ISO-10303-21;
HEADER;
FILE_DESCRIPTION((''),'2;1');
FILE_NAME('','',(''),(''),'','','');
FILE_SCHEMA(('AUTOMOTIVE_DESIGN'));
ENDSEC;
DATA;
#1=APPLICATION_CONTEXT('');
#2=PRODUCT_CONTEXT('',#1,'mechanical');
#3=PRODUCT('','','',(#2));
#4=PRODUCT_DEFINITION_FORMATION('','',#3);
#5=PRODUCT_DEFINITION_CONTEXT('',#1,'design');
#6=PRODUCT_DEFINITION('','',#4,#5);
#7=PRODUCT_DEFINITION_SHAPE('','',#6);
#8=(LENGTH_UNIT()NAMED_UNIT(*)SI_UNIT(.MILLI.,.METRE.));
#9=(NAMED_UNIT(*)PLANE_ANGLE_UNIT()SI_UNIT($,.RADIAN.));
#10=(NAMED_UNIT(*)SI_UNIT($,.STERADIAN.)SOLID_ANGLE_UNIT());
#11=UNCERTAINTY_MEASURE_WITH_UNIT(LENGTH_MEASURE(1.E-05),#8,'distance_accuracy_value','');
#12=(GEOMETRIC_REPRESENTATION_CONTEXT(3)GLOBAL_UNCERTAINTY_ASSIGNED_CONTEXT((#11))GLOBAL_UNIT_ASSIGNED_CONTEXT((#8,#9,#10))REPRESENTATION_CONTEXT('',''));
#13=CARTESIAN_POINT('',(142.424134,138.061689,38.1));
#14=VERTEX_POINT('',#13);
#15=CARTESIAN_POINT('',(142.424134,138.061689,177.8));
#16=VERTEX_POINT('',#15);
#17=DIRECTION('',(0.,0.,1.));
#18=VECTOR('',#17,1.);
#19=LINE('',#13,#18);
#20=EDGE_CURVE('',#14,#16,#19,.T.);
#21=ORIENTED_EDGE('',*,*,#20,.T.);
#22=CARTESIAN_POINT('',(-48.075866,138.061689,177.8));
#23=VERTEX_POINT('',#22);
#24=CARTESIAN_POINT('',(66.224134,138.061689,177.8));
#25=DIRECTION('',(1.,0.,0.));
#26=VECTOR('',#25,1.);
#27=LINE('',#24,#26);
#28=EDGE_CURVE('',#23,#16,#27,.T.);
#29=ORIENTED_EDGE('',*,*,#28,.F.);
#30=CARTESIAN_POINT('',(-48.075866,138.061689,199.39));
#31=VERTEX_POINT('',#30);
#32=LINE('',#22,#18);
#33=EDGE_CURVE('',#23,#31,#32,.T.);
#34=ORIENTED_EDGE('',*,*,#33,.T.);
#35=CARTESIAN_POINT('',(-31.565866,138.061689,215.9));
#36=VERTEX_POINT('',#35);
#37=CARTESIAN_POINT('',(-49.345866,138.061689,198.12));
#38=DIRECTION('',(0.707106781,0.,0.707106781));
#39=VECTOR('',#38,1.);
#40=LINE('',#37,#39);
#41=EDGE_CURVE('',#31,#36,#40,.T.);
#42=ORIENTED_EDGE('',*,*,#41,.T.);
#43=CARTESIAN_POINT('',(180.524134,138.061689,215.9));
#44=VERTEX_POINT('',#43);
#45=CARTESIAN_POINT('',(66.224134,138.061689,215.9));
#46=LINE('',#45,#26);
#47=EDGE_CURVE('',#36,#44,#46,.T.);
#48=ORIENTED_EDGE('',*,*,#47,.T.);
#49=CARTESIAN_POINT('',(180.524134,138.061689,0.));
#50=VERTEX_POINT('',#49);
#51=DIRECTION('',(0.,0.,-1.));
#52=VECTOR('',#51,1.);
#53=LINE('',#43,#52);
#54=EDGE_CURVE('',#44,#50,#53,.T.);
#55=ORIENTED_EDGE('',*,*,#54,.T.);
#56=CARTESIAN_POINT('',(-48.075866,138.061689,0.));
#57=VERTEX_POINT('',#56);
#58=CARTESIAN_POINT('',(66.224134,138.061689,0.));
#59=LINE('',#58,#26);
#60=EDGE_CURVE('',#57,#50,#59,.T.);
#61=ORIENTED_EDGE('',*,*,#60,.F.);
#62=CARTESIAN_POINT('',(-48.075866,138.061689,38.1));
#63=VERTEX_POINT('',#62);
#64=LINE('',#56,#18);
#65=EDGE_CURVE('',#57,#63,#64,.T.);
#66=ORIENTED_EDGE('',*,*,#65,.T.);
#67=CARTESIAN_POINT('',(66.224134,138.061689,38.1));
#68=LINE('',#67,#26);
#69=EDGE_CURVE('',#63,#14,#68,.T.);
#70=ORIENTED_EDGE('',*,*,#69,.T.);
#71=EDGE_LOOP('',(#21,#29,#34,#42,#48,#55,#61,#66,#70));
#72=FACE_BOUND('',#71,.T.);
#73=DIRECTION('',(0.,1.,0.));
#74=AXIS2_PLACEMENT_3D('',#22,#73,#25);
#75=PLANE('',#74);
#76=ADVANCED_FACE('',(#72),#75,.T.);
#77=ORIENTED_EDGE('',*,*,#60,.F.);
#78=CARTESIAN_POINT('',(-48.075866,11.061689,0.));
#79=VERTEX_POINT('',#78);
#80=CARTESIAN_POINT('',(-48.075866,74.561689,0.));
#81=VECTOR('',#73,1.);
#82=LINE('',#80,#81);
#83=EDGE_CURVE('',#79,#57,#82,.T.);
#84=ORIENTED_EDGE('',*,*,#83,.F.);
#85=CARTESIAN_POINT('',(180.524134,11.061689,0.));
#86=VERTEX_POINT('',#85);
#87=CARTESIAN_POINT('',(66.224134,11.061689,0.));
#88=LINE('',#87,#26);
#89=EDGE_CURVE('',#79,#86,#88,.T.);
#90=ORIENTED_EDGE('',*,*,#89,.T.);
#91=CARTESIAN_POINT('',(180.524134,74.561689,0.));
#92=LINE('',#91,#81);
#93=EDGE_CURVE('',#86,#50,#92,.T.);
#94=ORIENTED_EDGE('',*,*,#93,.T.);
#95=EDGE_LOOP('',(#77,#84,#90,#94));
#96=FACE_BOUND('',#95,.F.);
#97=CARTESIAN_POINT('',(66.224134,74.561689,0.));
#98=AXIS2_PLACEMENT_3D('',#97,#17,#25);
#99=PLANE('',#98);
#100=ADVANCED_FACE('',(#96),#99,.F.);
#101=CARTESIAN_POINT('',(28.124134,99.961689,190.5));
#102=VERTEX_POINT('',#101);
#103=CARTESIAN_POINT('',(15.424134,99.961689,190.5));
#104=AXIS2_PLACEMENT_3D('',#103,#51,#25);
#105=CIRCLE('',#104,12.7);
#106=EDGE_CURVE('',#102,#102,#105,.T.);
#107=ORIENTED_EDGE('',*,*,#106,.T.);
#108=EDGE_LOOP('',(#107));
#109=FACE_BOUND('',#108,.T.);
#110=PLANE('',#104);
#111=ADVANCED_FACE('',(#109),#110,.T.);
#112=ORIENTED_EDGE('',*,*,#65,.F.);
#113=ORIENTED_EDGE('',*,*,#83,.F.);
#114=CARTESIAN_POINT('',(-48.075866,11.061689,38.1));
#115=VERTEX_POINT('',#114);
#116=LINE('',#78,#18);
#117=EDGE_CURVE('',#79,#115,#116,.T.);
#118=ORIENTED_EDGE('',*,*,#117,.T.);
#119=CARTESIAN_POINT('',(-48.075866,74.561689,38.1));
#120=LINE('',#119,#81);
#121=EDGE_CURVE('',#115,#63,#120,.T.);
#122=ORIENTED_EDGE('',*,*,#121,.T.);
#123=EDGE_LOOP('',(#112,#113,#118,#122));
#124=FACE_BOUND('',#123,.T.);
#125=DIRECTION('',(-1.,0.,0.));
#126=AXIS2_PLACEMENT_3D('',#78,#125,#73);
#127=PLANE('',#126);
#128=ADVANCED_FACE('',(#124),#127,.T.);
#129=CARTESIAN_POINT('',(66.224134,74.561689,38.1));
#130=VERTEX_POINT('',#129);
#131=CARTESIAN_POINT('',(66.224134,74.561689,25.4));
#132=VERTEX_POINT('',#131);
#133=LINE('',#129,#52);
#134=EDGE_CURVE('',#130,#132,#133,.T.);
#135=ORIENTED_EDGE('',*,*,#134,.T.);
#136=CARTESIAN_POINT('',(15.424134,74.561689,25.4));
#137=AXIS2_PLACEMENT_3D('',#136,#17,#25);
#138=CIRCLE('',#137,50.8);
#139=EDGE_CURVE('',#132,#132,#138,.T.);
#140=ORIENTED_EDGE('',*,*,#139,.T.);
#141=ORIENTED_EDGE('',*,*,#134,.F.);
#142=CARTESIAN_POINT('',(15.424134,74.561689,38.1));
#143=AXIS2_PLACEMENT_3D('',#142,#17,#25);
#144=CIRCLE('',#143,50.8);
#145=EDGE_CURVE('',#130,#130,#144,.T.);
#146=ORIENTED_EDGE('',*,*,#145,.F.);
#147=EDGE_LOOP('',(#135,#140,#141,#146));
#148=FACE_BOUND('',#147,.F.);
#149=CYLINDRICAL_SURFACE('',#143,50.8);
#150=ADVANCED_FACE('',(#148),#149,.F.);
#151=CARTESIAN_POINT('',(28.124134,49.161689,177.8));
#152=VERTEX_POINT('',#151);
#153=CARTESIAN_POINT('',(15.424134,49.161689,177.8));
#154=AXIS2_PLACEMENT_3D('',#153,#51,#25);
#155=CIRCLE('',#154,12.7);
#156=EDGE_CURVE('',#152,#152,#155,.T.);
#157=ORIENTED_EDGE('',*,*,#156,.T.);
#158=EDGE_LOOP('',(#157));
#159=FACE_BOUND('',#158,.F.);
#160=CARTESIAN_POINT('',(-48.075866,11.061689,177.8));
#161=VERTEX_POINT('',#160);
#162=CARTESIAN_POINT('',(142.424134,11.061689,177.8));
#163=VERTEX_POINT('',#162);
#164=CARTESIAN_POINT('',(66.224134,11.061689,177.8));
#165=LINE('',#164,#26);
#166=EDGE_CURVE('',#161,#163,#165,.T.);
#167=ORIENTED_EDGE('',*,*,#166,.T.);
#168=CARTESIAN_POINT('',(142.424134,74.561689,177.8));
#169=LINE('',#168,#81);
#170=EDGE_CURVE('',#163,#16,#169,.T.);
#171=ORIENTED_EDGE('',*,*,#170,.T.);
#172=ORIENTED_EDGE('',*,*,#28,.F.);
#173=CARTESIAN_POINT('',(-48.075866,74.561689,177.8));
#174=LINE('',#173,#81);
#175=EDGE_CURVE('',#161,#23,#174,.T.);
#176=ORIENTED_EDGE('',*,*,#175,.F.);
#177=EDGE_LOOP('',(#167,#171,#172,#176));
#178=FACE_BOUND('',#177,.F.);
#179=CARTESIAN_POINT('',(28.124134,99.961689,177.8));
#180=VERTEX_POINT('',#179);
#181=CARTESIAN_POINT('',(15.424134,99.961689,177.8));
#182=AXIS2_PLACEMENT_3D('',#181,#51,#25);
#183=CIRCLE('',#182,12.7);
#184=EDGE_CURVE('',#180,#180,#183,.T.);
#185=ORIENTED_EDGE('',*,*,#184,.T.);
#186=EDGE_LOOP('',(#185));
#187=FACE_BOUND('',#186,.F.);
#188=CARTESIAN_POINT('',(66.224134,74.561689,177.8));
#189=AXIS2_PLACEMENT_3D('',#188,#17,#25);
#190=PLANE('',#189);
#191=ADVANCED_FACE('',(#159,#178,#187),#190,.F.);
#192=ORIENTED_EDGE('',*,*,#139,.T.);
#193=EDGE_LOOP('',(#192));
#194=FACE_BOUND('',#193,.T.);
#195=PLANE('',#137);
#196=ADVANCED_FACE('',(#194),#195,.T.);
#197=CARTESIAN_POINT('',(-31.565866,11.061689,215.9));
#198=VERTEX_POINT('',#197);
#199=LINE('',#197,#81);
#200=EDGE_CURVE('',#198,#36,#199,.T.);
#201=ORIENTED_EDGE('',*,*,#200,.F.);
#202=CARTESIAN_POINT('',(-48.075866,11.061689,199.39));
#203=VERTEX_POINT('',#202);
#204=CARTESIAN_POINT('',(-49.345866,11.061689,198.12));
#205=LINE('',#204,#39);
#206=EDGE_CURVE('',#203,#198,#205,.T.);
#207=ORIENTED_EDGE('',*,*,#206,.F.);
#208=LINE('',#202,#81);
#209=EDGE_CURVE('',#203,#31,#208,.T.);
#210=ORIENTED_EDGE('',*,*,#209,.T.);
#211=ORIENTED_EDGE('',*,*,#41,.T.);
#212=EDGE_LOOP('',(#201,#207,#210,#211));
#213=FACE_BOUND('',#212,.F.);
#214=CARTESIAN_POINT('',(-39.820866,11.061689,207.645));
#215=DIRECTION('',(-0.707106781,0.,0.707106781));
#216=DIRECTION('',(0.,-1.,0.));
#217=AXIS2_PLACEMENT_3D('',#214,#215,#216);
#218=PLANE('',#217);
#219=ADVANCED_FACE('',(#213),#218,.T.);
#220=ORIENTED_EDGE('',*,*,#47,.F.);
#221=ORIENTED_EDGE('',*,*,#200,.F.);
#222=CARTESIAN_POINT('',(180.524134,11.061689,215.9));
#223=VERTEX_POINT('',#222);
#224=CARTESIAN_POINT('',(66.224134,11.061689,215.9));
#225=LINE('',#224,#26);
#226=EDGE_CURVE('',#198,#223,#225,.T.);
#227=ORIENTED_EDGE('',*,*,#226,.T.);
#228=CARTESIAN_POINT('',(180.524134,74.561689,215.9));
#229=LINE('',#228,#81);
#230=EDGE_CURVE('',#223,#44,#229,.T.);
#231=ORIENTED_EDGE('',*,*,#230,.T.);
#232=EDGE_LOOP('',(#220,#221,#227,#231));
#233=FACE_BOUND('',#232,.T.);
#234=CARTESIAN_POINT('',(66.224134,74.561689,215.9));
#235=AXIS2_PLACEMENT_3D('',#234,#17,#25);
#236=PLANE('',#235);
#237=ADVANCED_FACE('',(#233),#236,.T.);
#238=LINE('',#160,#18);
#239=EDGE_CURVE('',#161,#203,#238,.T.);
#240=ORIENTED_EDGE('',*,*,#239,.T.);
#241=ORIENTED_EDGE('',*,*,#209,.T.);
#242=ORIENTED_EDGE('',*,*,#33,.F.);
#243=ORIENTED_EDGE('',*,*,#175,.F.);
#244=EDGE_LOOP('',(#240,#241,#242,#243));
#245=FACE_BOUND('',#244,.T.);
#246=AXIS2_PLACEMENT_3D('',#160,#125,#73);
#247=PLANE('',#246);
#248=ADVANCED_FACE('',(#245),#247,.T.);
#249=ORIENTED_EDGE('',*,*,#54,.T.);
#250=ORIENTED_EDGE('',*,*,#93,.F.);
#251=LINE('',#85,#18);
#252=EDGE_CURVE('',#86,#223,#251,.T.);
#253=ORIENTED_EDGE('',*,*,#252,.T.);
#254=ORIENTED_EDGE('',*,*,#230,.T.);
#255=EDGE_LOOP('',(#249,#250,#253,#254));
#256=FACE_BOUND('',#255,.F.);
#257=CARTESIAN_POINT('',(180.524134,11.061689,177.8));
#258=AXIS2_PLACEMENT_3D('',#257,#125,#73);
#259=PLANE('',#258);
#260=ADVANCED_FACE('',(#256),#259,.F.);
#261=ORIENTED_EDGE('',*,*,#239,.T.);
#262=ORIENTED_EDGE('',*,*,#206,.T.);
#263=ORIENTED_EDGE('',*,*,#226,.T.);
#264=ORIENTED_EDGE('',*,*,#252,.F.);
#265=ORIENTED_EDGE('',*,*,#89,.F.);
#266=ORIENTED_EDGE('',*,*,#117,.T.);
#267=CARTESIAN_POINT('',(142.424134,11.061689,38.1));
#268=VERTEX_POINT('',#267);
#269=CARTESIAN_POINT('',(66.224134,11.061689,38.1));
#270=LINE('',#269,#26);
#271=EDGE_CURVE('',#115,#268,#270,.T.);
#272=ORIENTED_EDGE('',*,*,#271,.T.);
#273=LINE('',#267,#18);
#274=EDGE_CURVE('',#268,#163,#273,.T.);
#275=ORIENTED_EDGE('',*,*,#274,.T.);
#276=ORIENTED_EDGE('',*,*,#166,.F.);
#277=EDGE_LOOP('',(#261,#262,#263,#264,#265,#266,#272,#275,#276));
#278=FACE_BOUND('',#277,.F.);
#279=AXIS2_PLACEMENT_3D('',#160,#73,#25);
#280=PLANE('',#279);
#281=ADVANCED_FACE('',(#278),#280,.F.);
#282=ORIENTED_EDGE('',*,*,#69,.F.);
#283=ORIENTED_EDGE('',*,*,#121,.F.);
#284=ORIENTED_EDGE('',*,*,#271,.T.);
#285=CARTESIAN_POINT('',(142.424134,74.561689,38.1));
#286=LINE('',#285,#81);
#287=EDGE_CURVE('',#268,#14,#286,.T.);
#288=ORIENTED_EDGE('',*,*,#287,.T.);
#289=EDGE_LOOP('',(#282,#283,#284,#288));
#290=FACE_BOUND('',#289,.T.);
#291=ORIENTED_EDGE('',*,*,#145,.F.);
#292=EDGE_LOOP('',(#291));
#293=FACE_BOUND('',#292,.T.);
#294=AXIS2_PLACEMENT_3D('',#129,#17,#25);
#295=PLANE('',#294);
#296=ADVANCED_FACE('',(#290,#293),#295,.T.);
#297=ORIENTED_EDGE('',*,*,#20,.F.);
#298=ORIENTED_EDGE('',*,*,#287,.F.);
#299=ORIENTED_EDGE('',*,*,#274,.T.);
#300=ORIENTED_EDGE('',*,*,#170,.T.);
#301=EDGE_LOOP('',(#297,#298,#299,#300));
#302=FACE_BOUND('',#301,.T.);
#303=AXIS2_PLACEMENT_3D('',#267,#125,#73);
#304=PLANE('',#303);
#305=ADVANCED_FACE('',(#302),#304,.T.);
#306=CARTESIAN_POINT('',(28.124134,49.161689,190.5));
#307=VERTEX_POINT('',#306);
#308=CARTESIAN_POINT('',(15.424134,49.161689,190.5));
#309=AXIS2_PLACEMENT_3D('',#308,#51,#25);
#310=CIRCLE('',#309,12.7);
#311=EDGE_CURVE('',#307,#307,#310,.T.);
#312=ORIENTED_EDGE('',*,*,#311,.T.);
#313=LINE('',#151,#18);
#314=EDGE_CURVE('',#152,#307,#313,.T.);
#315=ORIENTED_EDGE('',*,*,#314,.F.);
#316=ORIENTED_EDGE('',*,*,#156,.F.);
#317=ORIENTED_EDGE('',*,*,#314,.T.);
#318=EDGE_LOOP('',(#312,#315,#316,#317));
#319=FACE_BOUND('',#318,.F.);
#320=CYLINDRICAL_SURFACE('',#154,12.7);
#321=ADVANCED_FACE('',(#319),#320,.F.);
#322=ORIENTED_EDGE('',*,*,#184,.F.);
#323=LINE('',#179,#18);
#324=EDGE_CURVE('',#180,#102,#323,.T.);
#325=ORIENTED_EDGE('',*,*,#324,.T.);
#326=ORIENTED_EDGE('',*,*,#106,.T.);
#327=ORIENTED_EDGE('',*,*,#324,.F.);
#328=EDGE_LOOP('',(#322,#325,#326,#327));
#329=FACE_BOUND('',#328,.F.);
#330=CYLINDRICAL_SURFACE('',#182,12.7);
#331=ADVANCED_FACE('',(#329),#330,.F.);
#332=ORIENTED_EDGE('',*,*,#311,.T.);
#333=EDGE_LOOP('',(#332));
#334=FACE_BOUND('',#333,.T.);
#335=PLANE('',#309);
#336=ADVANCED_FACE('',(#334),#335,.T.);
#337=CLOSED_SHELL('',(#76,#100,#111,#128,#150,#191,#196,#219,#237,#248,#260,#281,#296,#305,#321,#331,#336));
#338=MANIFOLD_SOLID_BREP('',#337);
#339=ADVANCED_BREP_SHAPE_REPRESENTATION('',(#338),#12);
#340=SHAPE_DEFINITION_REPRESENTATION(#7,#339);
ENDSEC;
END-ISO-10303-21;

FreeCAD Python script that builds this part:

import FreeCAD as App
import Part
import Sketcher

V = App.Vector
Q = App.Units.Quantity


def edges_at(feature, points):
    """Names of the edges that pass closest to the given points."""
    edges = feature.Shape.Edges
    near = lambda p: min(range(len(edges)), key=lambda i: edges[i].distToShape(Part.Vertex(*p))[0])
    return sorted({f"Edge{near(p) + 1}" for p in points})

doc = App.newDocument("Part")
body = doc.addObject("PartDesign::Body", "Body")

# Sketch on XY plane
sketch1 = body.newObject("Sketcher::SketchObject", "Sketch")
sketch1.AttachmentSupport = (doc.getObject("XY_Plane"), [""])
sketch1.MapMode = "FlatFace"
sketch1.addGeometry(Part.LineSegment(V(-48.075866, 138.061689, 0), V(-48.075866, 11.061689, 0)), False)
sketch1.addGeometry(Part.LineSegment(V(-48.075866, 11.061689, 0), V(180.524134, 11.061689, 0)), False)
sketch1.addGeometry(Part.LineSegment(V(180.524134, 11.061689, 0), V(180.524134, 138.061689, 0)), False)
sketch1.addGeometry(Part.LineSegment(V(180.524134, 138.061689, 0), V(-48.075866, 138.061689, 0)), False)
sketch1.addConstraint(Sketcher.Constraint("Coincident", 0, 2, 1, 1))
sketch1.addConstraint(Sketcher.Constraint("Coincident", 1, 2, 2, 1))
sketch1.addConstraint(Sketcher.Constraint("Coincident", 2, 2, 3, 1))
sketch1.addConstraint(Sketcher.Constraint("Coincident", 3, 2, 0, 1))
sketch1.addConstraint(Sketcher.Constraint("Vertical", 0))
sketch1.addConstraint(Sketcher.Constraint("Horizontal", 1))
sketch1.addConstraint(Sketcher.Constraint("Vertical", 2))
sketch1.addConstraint(Sketcher.Constraint("Horizontal", 3))
sketch1.addConstraint(Sketcher.Constraint("DistanceX", 1, 1, 1, 2, Q("9 in")))
sketch1.addConstraint(Sketcher.Constraint("DistanceY", 0, 2, 0, 1, Q("5 in")))
sketch1.addConstraint(Sketcher.Constraint("DistanceY", -1, 1, 0, 2, 11.061689))
sketch1.addConstraint(Sketcher.Constraint("DistanceX", 0, 2, -1, 1, 48.075866))
pad1 = body.newObject("PartDesign::Pad", "Pad")
pad1.Profile = sketch1
pad1.Length = Q("1.5 in")

# Sketch on XY plane
sketch2 = body.newObject("Sketcher::SketchObject", "Sketch001")
sketch2.AttachmentSupport = (doc.getObject("XY_Plane"), [""])
sketch2.MapMode = "FlatFace"
sketch2.AttachmentOffset = App.Placement(V(0, 0, 1.5 * 25.4), App.Rotation())
sketch2.addGeometry(Part.LineSegment(V(142.424134, 138.061689, 0), V(142.424134, 11.061689, 0)), False)
sketch2.addGeometry(Part.LineSegment(V(142.424134, 11.061689, 0), V(180.524134, 11.061689, 0)), False)
sketch2.addGeometry(Part.LineSegment(V(180.524134, 11.061689, 0), V(180.524134, 138.061689, 0)), False)
sketch2.addGeometry(Part.LineSegment(V(180.524134, 138.061689, 0), V(142.424134, 138.061689, 0)), False)
sketch2.addConstraint(Sketcher.Constraint("Coincident", 0, 2, 1, 1))
sketch2.addConstraint(Sketcher.Constraint("Coincident", 1, 2, 2, 1))
sketch2.addConstraint(Sketcher.Constraint("Coincident", 2, 2, 3, 1))
sketch2.addConstraint(Sketcher.Constraint("Coincident", 3, 2, 0, 1))
sketch2.addConstraint(Sketcher.Constraint("Vertical", 0))
sketch2.addConstraint(Sketcher.Constraint("Horizontal", 1))
sketch2.addConstraint(Sketcher.Constraint("Vertical", 2))
sketch2.addConstraint(Sketcher.Constraint("Horizontal", 3))
sketch2.addConstraint(Sketcher.Constraint("DistanceY", 0, 2, 0, 1, Q("5 in")))
sketch2.addConstraint(Sketcher.Constraint("DistanceX", 1, 1, 1, 2, Q("1.5 in")))
sketch2.addConstraint(Sketcher.Constraint("DistanceY", -1, 1, 0, 2, 11.061689))
sketch2.addConstraint(Sketcher.Constraint("DistanceX", -1, 1, 0, 2, 142.424134))
pad2 = body.newObject("PartDesign::Pad", "Pad001")
pad2.Profile = sketch2
pad2.Length = Q("5.5 in")

# Sketch on XY plane
sketch3 = body.newObject("Sketcher::SketchObject", "Sketch002")
sketch3.AttachmentSupport = (doc.getObject("XY_Plane"), [""])
sketch3.MapMode = "FlatFace"
sketch3.AttachmentOffset = App.Placement(V(0, 0, 7 * 25.4), App.Rotation())
sketch3.addGeometry(Part.LineSegment(V(-48.075866, 138.061689, 0), V(-48.075866, 11.061689, 0)), False)
sketch3.addGeometry(Part.LineSegment(V(-48.075866, 11.061689, 0), V(180.524134, 11.061689, 0)), False)
sketch3.addGeometry(Part.LineSegment(V(180.524134, 11.061689, 0), V(180.524134, 138.061689, 0)), False)
sketch3.addGeometry(Part.LineSegment(V(180.524134, 138.061689, 0), V(-48.075866, 138.061689, 0)), False)
sketch3.addConstraint(Sketcher.Constraint("Coincident", 0, 2, 1, 1))
sketch3.addConstraint(Sketcher.Constraint("Coincident", 1, 2, 2, 1))
sketch3.addConstraint(Sketcher.Constraint("Coincident", 2, 2, 3, 1))
sketch3.addConstraint(Sketcher.Constraint("Coincident", 3, 2, 0, 1))
sketch3.addConstraint(Sketcher.Constraint("Vertical", 0))
sketch3.addConstraint(Sketcher.Constraint("Horizontal", 1))
sketch3.addConstraint(Sketcher.Constraint("Vertical", 2))
sketch3.addConstraint(Sketcher.Constraint("Horizontal", 3))
sketch3.addConstraint(Sketcher.Constraint("DistanceX", 1, 1, 1, 2, Q("9 in")))
sketch3.addConstraint(Sketcher.Constraint("DistanceY", 0, 2, 0, 1, Q("5 in")))
sketch3.addConstraint(Sketcher.Constraint("DistanceY", -1, 1, 0, 2, 11.061689))
sketch3.addConstraint(Sketcher.Constraint("DistanceX", 0, 2, -1, 1, 48.075866))
pad3 = body.newObject("PartDesign::Pad", "Pad002")
pad3.Profile = sketch3
pad3.Length = Q("1.5 in")
doc.recompute()

chamfer = body.newObject("PartDesign::Chamfer", "Chamfer")
chamfer.Base = (pad3, edges_at(pad3, [(-48.076, 74.562, 215.9)]))
chamfer.Size = Q("0.65 in")

# Sketch on XY plane
sketch4 = body.newObject("Sketcher::SketchObject", "Sketch003")
sketch4.AttachmentSupport = (doc.getObject("XY_Plane"), [""])
sketch4.MapMode = "FlatFace"
sketch4.AttachmentOffset = App.Placement(V(0, 0, 7 * 25.4), App.Rotation())
sketch4.addGeometry(Part.Circle(V(15.424134, 99.961689, 0), V(0, 0, 1), 12.7), False)
sketch4.addConstraint(Sketcher.Constraint("Diameter", 0, Q("1 in")))
sketch4.addConstraint(Sketcher.Constraint("DistanceY", -1, 1, 0, 3, 99.961689))
sketch4.addConstraint(Sketcher.Constraint("DistanceX", -1, 1, 0, 3, 15.424134))
pocket1 = body.newObject("PartDesign::Pocket", "Pocket")
pocket1.Profile = sketch4
pocket1.Length = Q("0.5 in")
pocket1.Reversed = True

# Sketch on XY plane
sketch5 = body.newObject("Sketcher::SketchObject", "Sketch004")
sketch5.AttachmentSupport = (doc.getObject("XY_Plane"), [""])
sketch5.MapMode = "FlatFace"
sketch5.AttachmentOffset = App.Placement(V(0, 0, 7 * 25.4), App.Rotation())
sketch5.addGeometry(Part.Circle(V(15.424134, 49.161689, 0), V(0, 0, 1), 12.7), False)
sketch5.addConstraint(Sketcher.Constraint("Diameter", 0, Q("1 in")))
sketch5.addConstraint(Sketcher.Constraint("DistanceY", -1, 1, 0, 3, 49.161689))
sketch5.addConstraint(Sketcher.Constraint("DistanceX", -1, 1, 0, 3, 15.424134))
pocket2 = body.newObject("PartDesign::Pocket", "Pocket001")
pocket2.Profile = sketch5
pocket2.Length = Q("0.5 in")
pocket2.Reversed = True

# Sketch on XY plane
sketch6 = body.newObject("Sketcher::SketchObject", "Sketch005")
sketch6.AttachmentSupport = (doc.getObject("XY_Plane"), [""])
sketch6.MapMode = "FlatFace"
sketch6.AttachmentOffset = App.Placement(V(0, 0, 1.5 * 25.4), App.Rotation())
sketch6.addGeometry(Part.Circle(V(15.424134, 74.561689, 0), V(0, 0, 1), 50.8), False)
sketch6.addConstraint(Sketcher.Constraint("Diameter", 0, Q("4 in")))
sketch6.addConstraint(Sketcher.Constraint("DistanceY", -1, 1, 0, 3, 74.561689))
sketch6.addConstraint(Sketcher.Constraint("DistanceX", -1, 1, 0, 3, 15.424134))
pocket3 = body.newObject("PartDesign::Pocket", "Pocket002")
pocket3.Profile = sketch6
pocket3.Length = Q("0.5 in")

doc.recompute()
